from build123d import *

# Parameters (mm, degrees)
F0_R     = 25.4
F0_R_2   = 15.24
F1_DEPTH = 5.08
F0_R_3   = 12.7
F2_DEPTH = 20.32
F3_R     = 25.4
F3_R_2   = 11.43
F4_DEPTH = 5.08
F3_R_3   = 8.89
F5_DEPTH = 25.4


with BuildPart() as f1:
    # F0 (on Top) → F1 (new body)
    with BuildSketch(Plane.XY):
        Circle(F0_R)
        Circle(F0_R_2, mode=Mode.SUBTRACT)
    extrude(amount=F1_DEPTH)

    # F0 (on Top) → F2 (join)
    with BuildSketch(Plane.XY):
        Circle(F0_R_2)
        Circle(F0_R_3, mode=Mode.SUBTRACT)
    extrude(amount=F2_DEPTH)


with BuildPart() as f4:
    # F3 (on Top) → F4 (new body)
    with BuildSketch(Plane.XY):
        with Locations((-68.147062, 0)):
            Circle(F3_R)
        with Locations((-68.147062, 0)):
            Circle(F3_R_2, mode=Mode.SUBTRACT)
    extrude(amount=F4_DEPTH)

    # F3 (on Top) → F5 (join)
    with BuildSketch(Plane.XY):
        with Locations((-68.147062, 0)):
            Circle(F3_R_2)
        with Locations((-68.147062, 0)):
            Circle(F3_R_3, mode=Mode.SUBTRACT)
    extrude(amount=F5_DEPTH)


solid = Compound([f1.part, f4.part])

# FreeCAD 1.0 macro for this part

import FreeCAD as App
import Part
import Sketcher
from FreeCAD import Vector
Q = App.Units.Quantity

doc = App.newDocument("Part")
body = doc.addObject("PartDesign::Body", "Body")

# Sketch on XY plane
sketch1 = doc.addObject("Sketcher::SketchObject", "Sketch")
body.addObject(sketch1)
sketch1.AttachmentSupport = (doc.XY_Plane, [""])
sketch1.MapMode = "FlatFace"
sketch1.addGeometry([
    Part.Circle(Vector(0, 0, 0), Vector(0, 0, 1), 25),
    Part.Circle(Vector(0, 0, 0), Vector(0, 0, 1), 15),
], False)
sketch1.addConstraint([
    Sketcher.Constraint("Coincident", 0, 3, -1, 1),
    Sketcher.Constraint("Coincident", 1, 3, -1, 1),
    Sketcher.Constraint("Diameter", 0, Q("2 in")),
    Sketcher.Constraint("Diameter", 1, Q("1.2 in")),
])
pad1 = doc.addObject("PartDesign::Pad", "Pad")
body.addObject(pad1)
pad1.Profile = sketch1
pad1.Length = Q("0.2 in")

# Sketch on XY plane
sketch2 = doc.addObject("Sketcher::SketchObject", "Sketch001")
body.addObject(sketch2)
sketch2.AttachmentSupport = (doc.XY_Plane, [""])
sketch2.MapMode = "FlatFace"
sketch2.addGeometry([
    Part.Circle(Vector(0, 0, 0), Vector(0, 0, 1), 15),
    Part.Circle(Vector(0, 0, 0), Vector(0, 0, 1), 13),
], False)
sketch2.addConstraint([
    Sketcher.Constraint("Coincident", 0, 3, -1, 1),
    Sketcher.Constraint("Coincident", 1, 3, -1, 1),
    Sketcher.Constraint("Diameter", 1, Q("1 in")),
    Sketcher.Constraint("Diameter", 0, Q("1.2 in")),
])
pad2 = doc.addObject("PartDesign::Pad", "Pad001")
body.addObject(pad2)
pad2.Profile = sketch2
pad2.Length = Q("0.8 in")
body2 = doc.addObject("PartDesign::Body", "Body001")

# Sketch on XY plane
sketch3 = doc.addObject("Sketcher::SketchObject", "Sketch002")
body2.addObject(sketch3)
sketch3.AttachmentSupport = (doc.getObject("XY_Plane001"), [""])
sketch3.MapMode = "FlatFace"
sketch3.addGeometry([
    Part.Circle(Vector(-68, 0, 0), Vector(0, 0, 1), 25),
    Part.Circle(Vector(-68, 0, 0), Vector(0, 0, 1), 11),
], False)
sketch3.addConstraint([
    Sketcher.Constraint("Coincident", 1, 3, 0, 3),
    Sketcher.Constraint("PointOnObject", 0, 3, -1),
    Sketcher.Constraint("Diameter", 0, Q("2 in")),
    Sketcher.Constraint("Diameter", 1, Q("0.9 in")),
    Sketcher.Constraint("DistanceX", 0, 3, -1, 1, 68.147062),
])
pad3 = doc.addObject("PartDesign::Pad", "Pad002")
body2.addObject(pad3)
pad3.Profile = sketch3
pad3.Length = Q("0.2 in")

# Sketch on XY plane
sketch4 = doc.addObject("Sketcher::SketchObject", "Sketch003")
body2.addObject(sketch4)
sketch4.AttachmentSupport = (doc.getObject("XY_Plane001"), [""])
sketch4.MapMode = "FlatFace"
sketch4.addGeometry([
    Part.Circle(Vector(-68, 0, 0), Vector(0, 0, 1), 11),
    Part.Circle(Vector(-68, 0, 0), Vector(0, 0, 1), 9),
], False)
sketch4.addConstraint([
    Sketcher.Constraint("Coincident", 1, 3, 0, 3),
    Sketcher.Constraint("PointOnObject", 0, 3, -1),
    Sketcher.Constraint("Diameter", 0, Q("0.9 in")),
    Sketcher.Constraint("Diameter", 1, Q("0.7 in")),
    Sketcher.Constraint("DistanceX", 0, 3, -1, 1, 68.147062),
])
pad4 = doc.addObject("PartDesign::Pad", "Pad003")
body2.addObject(pad4)
pad4.Profile = sketch4
pad4.Length = Q("1 in")

doc.recompute()
